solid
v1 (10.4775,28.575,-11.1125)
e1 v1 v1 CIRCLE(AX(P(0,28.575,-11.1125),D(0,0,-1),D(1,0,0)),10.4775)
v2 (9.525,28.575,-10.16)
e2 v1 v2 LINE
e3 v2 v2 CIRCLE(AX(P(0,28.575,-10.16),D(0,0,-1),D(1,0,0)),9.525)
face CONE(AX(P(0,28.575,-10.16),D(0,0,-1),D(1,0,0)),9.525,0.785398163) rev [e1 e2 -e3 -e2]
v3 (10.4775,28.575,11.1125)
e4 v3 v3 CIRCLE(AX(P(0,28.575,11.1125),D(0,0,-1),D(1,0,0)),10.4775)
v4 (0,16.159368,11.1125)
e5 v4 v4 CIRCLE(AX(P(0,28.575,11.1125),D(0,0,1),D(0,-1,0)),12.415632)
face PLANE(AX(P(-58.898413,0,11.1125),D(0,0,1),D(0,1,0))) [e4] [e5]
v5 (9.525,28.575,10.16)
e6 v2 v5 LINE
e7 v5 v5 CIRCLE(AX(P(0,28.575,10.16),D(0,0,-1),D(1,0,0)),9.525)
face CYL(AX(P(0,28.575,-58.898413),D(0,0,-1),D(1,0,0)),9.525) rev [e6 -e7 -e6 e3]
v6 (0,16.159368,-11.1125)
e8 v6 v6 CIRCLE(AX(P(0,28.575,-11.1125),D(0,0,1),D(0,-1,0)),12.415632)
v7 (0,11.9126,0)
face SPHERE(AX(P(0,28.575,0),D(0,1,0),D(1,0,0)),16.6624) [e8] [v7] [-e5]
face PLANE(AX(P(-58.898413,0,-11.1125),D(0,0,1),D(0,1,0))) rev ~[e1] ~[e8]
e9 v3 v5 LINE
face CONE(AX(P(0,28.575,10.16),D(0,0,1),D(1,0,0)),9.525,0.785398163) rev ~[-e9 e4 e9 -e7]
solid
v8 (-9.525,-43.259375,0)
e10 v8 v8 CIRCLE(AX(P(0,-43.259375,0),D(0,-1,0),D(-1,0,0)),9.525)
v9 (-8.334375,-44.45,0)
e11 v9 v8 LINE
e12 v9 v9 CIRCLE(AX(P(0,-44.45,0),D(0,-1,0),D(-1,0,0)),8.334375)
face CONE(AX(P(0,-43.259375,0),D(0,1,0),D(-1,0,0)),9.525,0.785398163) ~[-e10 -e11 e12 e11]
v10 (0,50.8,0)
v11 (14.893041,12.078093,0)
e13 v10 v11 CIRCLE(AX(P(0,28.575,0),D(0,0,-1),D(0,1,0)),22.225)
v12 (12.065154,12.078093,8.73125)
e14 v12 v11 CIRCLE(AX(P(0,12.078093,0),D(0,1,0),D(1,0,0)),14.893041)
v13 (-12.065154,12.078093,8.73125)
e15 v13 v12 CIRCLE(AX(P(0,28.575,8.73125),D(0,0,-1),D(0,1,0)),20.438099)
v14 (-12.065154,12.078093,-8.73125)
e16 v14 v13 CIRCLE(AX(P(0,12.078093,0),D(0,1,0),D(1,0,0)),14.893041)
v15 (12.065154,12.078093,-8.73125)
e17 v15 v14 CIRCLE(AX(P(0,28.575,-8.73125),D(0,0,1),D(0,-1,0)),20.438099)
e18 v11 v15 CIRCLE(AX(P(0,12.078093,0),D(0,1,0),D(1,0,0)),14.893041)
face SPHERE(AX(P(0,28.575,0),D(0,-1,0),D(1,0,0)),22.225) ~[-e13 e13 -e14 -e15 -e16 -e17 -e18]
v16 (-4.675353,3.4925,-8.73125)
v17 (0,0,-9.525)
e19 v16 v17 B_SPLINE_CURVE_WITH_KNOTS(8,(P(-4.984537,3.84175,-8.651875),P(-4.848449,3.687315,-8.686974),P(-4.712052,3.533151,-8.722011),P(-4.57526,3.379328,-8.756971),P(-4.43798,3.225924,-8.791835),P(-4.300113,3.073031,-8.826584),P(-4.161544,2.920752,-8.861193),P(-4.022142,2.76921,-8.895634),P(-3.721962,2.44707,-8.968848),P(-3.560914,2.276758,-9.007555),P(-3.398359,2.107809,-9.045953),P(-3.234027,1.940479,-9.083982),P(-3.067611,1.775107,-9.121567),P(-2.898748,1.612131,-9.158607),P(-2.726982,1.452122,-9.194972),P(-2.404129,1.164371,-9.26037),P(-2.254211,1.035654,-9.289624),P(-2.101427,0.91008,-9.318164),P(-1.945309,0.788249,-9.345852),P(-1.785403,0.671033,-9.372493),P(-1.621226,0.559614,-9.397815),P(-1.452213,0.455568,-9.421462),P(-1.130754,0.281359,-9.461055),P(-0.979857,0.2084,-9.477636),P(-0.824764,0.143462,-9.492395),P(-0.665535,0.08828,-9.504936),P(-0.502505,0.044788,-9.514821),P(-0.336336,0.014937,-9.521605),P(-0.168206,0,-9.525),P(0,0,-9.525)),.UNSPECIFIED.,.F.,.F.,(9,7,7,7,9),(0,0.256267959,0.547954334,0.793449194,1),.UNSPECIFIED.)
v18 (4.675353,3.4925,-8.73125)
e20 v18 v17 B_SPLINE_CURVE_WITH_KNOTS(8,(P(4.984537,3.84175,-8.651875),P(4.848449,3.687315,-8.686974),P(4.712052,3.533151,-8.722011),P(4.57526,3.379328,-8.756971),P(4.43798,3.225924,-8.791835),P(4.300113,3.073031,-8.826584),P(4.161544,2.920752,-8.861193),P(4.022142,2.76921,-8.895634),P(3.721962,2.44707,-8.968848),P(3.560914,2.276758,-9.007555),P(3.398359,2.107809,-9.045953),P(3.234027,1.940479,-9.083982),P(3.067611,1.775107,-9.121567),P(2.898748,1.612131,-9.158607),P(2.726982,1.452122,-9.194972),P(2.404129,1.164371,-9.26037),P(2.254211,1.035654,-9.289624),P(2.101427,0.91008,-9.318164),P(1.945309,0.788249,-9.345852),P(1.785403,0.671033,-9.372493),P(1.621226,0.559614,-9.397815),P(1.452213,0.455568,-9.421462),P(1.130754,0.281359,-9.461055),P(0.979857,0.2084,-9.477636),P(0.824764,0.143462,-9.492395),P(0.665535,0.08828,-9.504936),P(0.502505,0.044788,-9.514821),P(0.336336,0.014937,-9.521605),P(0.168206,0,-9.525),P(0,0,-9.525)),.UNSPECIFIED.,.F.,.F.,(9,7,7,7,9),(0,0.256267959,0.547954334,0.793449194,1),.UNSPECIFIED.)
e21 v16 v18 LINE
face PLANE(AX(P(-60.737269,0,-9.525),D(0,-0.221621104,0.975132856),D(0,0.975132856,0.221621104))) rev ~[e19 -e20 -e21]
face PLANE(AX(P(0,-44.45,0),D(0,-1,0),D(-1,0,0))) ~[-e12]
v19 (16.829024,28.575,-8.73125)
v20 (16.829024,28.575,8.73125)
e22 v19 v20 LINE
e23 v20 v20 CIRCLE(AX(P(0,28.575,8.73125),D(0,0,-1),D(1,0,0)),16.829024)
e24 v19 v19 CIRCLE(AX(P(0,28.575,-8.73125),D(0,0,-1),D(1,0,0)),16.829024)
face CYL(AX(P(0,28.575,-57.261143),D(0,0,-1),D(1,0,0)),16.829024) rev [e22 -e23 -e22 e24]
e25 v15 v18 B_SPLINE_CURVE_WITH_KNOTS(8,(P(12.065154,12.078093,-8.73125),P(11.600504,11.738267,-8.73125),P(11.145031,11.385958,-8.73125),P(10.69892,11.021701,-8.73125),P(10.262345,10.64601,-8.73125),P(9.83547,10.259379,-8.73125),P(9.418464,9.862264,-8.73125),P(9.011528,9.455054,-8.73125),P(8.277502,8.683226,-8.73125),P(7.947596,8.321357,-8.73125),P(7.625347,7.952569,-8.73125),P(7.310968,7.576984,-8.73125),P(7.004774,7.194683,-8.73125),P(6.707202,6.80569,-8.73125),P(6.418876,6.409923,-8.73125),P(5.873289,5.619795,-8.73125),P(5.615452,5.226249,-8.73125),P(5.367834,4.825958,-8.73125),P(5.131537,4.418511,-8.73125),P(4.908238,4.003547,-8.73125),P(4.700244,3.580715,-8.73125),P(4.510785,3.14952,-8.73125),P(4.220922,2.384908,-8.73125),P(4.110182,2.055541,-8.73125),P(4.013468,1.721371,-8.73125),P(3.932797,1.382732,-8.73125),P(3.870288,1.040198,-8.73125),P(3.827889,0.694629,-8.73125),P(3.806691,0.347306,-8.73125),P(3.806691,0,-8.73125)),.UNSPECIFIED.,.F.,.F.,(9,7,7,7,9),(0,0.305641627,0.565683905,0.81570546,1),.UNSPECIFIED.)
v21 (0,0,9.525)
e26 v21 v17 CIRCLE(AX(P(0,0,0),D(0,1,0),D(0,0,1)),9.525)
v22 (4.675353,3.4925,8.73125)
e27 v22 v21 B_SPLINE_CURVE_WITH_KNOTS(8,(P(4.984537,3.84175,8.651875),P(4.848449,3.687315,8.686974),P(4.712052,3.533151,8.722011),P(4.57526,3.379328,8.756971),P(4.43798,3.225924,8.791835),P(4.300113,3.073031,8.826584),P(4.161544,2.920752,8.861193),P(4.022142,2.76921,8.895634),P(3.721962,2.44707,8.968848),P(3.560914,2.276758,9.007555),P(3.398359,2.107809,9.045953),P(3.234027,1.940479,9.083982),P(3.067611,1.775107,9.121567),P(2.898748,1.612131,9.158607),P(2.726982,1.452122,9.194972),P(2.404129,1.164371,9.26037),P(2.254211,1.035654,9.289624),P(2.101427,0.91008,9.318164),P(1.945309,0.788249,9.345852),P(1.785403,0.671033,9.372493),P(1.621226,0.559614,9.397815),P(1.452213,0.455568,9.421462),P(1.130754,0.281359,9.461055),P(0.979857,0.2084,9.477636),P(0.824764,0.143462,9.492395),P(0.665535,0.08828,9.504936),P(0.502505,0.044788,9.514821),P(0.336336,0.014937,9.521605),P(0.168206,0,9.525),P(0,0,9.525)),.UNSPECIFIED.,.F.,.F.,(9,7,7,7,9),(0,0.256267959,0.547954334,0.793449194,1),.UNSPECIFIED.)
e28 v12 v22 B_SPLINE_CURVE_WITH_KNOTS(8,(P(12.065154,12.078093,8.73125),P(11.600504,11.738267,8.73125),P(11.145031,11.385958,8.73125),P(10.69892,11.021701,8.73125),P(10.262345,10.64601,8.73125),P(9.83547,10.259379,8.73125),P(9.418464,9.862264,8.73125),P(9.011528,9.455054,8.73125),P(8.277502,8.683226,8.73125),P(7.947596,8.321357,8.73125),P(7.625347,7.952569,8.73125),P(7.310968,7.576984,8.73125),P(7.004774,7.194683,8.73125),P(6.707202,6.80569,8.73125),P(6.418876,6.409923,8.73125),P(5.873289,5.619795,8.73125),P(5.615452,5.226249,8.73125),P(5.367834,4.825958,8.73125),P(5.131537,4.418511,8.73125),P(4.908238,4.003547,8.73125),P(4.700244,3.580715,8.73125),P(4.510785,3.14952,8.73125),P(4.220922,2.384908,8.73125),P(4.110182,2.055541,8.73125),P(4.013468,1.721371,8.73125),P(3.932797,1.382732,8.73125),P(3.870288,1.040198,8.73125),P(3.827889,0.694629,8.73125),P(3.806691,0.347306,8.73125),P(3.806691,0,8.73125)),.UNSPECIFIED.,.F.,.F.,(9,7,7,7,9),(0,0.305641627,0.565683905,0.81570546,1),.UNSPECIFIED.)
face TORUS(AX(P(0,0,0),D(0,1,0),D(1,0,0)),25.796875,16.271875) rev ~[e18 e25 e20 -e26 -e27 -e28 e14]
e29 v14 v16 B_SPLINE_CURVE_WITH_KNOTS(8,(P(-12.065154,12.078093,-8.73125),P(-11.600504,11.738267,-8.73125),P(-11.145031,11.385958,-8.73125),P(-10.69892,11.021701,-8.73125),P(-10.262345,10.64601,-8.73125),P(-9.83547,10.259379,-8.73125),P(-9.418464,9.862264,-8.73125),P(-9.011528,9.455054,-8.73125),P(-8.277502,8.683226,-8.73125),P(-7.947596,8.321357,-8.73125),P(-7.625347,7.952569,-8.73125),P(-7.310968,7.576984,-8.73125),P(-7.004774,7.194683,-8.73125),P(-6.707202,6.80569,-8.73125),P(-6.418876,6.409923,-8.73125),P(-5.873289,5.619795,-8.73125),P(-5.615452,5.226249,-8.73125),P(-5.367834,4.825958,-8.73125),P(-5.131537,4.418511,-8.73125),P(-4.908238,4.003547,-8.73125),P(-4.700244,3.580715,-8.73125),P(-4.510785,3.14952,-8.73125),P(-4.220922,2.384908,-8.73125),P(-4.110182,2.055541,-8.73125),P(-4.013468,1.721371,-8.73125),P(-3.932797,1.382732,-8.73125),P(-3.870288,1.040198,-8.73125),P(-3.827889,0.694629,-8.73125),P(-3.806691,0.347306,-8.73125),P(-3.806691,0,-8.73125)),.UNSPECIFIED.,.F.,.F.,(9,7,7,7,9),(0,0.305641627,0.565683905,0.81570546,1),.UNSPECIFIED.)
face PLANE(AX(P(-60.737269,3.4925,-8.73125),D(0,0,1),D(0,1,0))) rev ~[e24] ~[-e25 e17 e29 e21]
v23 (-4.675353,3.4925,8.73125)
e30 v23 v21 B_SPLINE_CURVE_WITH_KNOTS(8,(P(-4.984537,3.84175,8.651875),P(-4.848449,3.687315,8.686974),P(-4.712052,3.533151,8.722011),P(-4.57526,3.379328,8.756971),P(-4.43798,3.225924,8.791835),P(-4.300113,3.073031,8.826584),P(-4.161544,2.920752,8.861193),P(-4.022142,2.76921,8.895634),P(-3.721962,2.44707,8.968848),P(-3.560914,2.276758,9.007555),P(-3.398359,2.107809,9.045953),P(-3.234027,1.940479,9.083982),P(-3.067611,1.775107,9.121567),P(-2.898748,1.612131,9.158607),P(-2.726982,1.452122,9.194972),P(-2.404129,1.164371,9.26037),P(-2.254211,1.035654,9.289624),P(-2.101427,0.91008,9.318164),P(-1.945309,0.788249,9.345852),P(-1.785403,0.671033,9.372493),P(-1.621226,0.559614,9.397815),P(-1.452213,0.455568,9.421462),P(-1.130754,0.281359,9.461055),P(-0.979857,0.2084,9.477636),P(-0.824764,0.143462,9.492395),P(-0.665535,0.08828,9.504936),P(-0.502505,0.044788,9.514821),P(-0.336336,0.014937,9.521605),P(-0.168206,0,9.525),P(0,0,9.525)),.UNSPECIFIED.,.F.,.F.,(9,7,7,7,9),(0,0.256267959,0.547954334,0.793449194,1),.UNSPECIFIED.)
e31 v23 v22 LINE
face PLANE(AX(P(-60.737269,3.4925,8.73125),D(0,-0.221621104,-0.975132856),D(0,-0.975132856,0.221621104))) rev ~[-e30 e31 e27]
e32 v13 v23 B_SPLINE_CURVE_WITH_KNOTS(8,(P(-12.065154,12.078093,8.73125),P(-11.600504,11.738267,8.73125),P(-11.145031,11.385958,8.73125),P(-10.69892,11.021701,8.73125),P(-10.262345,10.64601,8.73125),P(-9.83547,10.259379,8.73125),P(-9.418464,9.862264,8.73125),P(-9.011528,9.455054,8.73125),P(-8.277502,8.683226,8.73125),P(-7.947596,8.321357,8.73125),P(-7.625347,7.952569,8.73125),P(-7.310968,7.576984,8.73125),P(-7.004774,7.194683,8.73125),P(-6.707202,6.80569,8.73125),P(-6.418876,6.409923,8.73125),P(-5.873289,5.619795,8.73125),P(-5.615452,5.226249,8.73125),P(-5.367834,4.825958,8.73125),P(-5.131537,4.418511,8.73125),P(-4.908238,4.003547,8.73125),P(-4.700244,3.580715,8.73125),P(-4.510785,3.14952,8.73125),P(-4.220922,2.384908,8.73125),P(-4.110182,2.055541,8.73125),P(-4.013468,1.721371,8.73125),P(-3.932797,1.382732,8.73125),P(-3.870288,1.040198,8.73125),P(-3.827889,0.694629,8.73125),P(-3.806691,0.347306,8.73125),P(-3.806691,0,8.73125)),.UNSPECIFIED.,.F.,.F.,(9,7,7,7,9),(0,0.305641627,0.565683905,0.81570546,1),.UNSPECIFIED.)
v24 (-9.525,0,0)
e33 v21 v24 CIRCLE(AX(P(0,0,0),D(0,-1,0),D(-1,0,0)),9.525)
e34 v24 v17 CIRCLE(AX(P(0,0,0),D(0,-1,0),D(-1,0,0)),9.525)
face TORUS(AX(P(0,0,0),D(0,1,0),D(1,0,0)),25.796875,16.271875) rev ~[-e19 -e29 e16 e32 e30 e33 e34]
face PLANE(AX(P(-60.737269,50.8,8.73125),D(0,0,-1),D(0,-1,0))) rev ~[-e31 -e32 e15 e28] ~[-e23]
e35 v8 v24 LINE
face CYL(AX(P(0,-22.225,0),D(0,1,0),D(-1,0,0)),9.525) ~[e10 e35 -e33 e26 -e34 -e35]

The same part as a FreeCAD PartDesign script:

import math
import FreeCAD as App
import Part
import Sketcher

V = App.Vector
Q = App.Units.Quantity


def edges_at(feature, points):
    """Names of the edges that pass closest to the given points."""
    edges = feature.Shape.Edges
    near = lambda p: min(range(len(edges)), key=lambda i: edges[i].distToShape(Part.Vertex(*p))[0])
    return sorted({f"Edge{near(p) + 1}" for p in points})

doc = App.newDocument("Part")
body = doc.addObject("PartDesign::Body", "Body")

# Sketch on XY plane
sketch1 = body.newObject("Sketcher::SketchObject", "Sketch")
sketch1.AttachmentSupport = (doc.getObject("XY_Plane"), [""])
sketch1.MapMode = "FlatFace"
sketch1.addGeometry(Part.LineSegment(V(0, 0, 0), V(0, -44, 0)), False)
sketch1.addGeometry(Part.LineSegment(V(0, -44, 0), V(10, -44, 0)), False)
sketch1.addGeometry(Part.LineSegment(V(10, -44, 0), V(10, 0, 0)), False)
sketch1.addGeometry(Part.LineSegment(V(10, 0, 0), V(0, 0, 0)), False)
sketch1.addConstraint(Sketcher.Constraint("Coincident", 0, 2, 1, 1))
sketch1.addConstraint(Sketcher.Constraint("Coincident", 1, 2, 2, 1))
sketch1.addConstraint(Sketcher.Constraint("Coincident", 2, 2, 3, 1))
sketch1.addConstraint(Sketcher.Constraint("Coincident", 3, 2, 0, 1))
sketch1.addConstraint(Sketcher.Constraint("Vertical", 0))
sketch1.addConstraint(Sketcher.Constraint("Horizontal", 1))
sketch1.addConstraint(Sketcher.Constraint("Vertical", 2))
sketch1.addConstraint(Sketcher.Constraint("Horizontal", 3))
sketch1.addConstraint(Sketcher.Constraint("Coincident", 3, 2, -1, 1))
sketch1.addConstraint(Sketcher.Constraint("DistanceY", 0, 2, 0, 1, Q("1.75 in")))
sketch1.addConstraint(Sketcher.Constraint("DistanceX", 1, 1, 1, 2, Q("0.375 in")))
revolution = body.newObject("PartDesign::Revolution", "Revolution")
revolution.Profile = sketch1
revolution.ReferenceAxis = (sketch1, ["V_Axis"])
revolution.Angle = 360
doc.recompute()

chamfer = body.newObject("PartDesign::Chamfer", "Chamfer")
chamfer.Base = (revolution, edges_at(revolution, [(9.525, -44.45, 0)]))
chamfer.Size = Q("0.046875 in")

# Sketch on XY plane
sketch2 = body.newObject("Sketcher::SketchObject", "Sketch001")
sketch2.AttachmentSupport = (doc.getObject("XY_Plane"), [""])
sketch2.MapMode = "FlatFace"
sketch2.addGeometry(Part.LineSegment(V(0, 0, 0), V(10, 0, 0)), False)
sketch2.addGeometry(Part.ArcOfCircle(Part.Circle(V(26, 0, 0), V(0, 0, 1), 16), math.radians(132), math.radians(180)), False)
sketch2.addGeometry(Part.ArcOfCircle(Part.Circle(V(0, 29, 0), V(0, 0, 1), 22), math.radians(-48), math.radians(90)), False)
sketch2.addGeometry(Part.LineSegment(V(0, 51, 0), V(0, 0, 0)), False)
sketch2.addConstraint(Sketcher.Constraint("Coincident", 0, 2, 1, 2))
sketch2.addConstraint(Sketcher.Constraint("Tangent", 1, 1, 2, 1))
sketch2.addConstraint(Sketcher.Constraint("Coincident", 2, 2, 3, 1))
sketch2.addConstraint(Sketcher.Constraint("Coincident", 3, 2, 0, 1))
sketch2.addConstraint(Sketcher.Constraint("Horizontal", 0))
sketch2.addConstraint(Sketcher.Constraint("Vertical", 3))
sketch2.addConstraint(Sketcher.Constraint("Coincident", 3, 2, -1, 1))
sketch2.addConstraint(Sketcher.Constraint("PointOnObject", 1, 3, -1))
sketch2.addConstraint(Sketcher.Constraint("PointOnObject", 2, 3, -2))
sketch2.addConstraint(Sketcher.Constraint("DistanceY", 3, 2, 3, 1, Q("2 in")))
sketch2.addConstraint(Sketcher.Constraint("Radius", 1, Q("0.640625 in")))
sketch2.addConstraint(Sketcher.Constraint("Radius", 2, Q("0.875 in")))
revolution2 = body.newObject("PartDesign::Revolution", "Revolution001")
revolution2.Profile = sketch2
revolution2.ReferenceAxis = (sketch2, ["V_Axis"])
revolution2.Angle = 360

# Sketch on YZ plane
sketch3 = body.newObject("Sketcher::SketchObject", "Sketch002")
sketch3.AttachmentSupport = (doc.getObject("YZ_Plane"), [""])
sketch3.MapMode = "FlatFace"
sketch3.addGeometry(Part.LineSegment(V(50.8, -22.2, 0), V(50.8, -8.7, 0)), False)
sketch3.addGeometry(Part.LineSegment(V(50.8, -8.7, 0), V(3.5, -8.7, 0)), False)
sketch3.addGeometry(Part.LineSegment(V(3.5, -8.7, 0), V(0, -9.5, 0)), False)
sketch3.addGeometry(Part.LineSegment(V(0, -9.5, 0), V(0, -22.2, 0)), False)
sketch3.addGeometry(Part.LineSegment(V(0, -22.2, 0), V(50.8, -22.2, 0)), False)
sketch3.addGeometry(Part.LineSegment(V(3.5, 8.7, 0), V(50.8, 8.7, 0)), False)
sketch3.addGeometry(Part.LineSegment(V(50.8, 8.7, 0), V(50.8, 22.2, 0)), False)
sketch3.addGeometry(Part.LineSegment(V(50.8, 22.2, 0), V(0, 22.2, 0)), False)
sketch3.addGeometry(Part.LineSegment(V(0, 22.2, 0), V(0, 9.5, 0)), False)
sketch3.addGeometry(Part.LineSegment(V(0, 9.5, 0), V(3.5, 8.7, 0)), False)
sketch3.addConstraint(Sketcher.Constraint("Coincident", 0, 2, 1, 1))
sketch3.addConstraint(Sketcher.Constraint("Coincident", 1, 2, 2, 1))
sketch3.addConstraint(Sketcher.Constraint("Coincident", 2, 2, 3, 1))
sketch3.addConstraint(Sketcher.Constraint("Coincident", 3, 2, 4, 1))
sketch3.addConstraint(Sketcher.Constraint("Coincident", 4, 2, 0, 1))
sketch3.addConstraint(Sketcher.Constraint("Coincident", 5, 2, 6, 1))
sketch3.addConstraint(Sketcher.Constraint("Coincident", 6, 2, 7, 1))
sketch3.addConstraint(Sketcher.Constraint("Coincident", 7, 2, 8, 1))
sketch3.addConstraint(Sketcher.Constraint("Coincident", 8, 2, 9, 1))
sketch3.addConstraint(Sketcher.Constraint("Coincident", 9, 2, 5, 1))
sketch3.addConstraint(Sketcher.Constraint("Vertical", 0))
sketch3.addConstraint(Sketcher.Constraint("Horizontal", 1))
sketch3.addConstraint(Sketcher.Constraint("Vertical", 3))
sketch3.addConstraint(Sketcher.Constraint("Horizontal", 4))
sketch3.addConstraint(Sketcher.Constraint("Horizontal", 5))
sketch3.addConstraint(Sketcher.Constraint("Vertical", 6))
sketch3.addConstraint(Sketcher.Constraint("Horizontal", 7))
sketch3.addConstraint(Sketcher.Constraint("Vertical", 8))
sketch3.addConstraint(Sketcher.Constraint("Symmetric", 3, 2, 7, 2, -1, 1))
sketch3.addConstraint(Sketcher.Constraint("Symmetric", 0, 2, 5, 2, -1))
sketch3.addConstraint(Sketcher.Constraint("Symmetric", 2, 2, 8, 2, -1))
sketch3.addConstraint(Sketcher.Constraint("Vertical", 1, 2, 9, 2))
sketch3.addConstraint(Sketcher.Constraint("DistanceX", 4, 1, 4, 2, Q("2 in")))
sketch3.addConstraint(Sketcher.Constraint("DistanceY", 3, 2, 3, 1, Q("0.5 in")))
sketch3.addConstraint(Sketcher.Constraint("DistanceY", 0, 1, 0, 2, Q("0.53125 in")))
sketch3.addConstraint(Sketcher.Constraint("DistanceY", 4, 2, 6, 2, Q("1.75 in")))
sketch3.addConstraint(Sketcher.Constraint("DistanceX", 1, 2, 1, 1, Q("1.8625 in")))
pocket1 = body.newObject("PartDesign::Pocket", "Pocket")
pocket1.Profile = sketch3
pocket1.Type = "ThroughAll"
pocket1.Midplane = True

# Sketch on XY plane
sketch4 = body.newObject("Sketcher::SketchObject", "Sketch003")
sketch4.AttachmentSupport = (doc.getObject("XY_Plane"), [""])
sketch4.MapMode = "FlatFace"
sketch4.addGeometry(Part.Circle(V(0, 29, 0), V(0, 0, 1), 17), False)
sketch4.addConstraint(Sketcher.Constraint("PointOnObject", 0, 3, -2))
sketch4.addConstraint(Sketcher.Constraint("DistanceY", -1, 1, 0, 3, Q("1.125 in")))
sketch4.addConstraint(Sketcher.Constraint("Diameter", 0, Q("33.658048 mm")))
pocket2 = body.newObject("PartDesign::Pocket", "Pocket001")
pocket2.Profile = sketch4
pocket2.Type = "ThroughAll"
pocket2.Midplane = True
body2 = doc.addObject("PartDesign::Body", "Body001")

# Sketch on XY plane
sketch5 = body2.newObject("Sketcher::SketchObject", "Sketch004")
sketch5.AttachmentSupport = (doc.getObject("XY_Plane001"), [""])
sketch5.MapMode = "FlatFace"
sketch5.addGeometry(Part.LineSegment(V(0, 45, 0), V(0, 12, 0)), False)
sketch5.addGeometry(Part.ArcOfCircle(Part.Circle(V(0, 29, 0), V(0, 0, 1), 17), math.radians(-90), math.radians(90)), False)
sketch5.addConstraint(Sketcher.Constraint("Coincident", 0, 1, 1, 2))
sketch5.addConstraint(Sketcher.Constraint("Coincident", 1, 1, 0, 2))
sketch5.addConstraint(Sketcher.Constraint("Vertical", 0))
sketch5.addConstraint(Sketcher.Constraint("PointOnObject", 1, 3, -2))
sketch5.addConstraint(Sketcher.Constraint("PointOnObject", 0, 1, -2))
sketch5.addConstraint(Sketcher.Constraint("Radius", 1, Q("0.656 in")))
sketch5.addConstraint(Sketcher.Constraint("DistanceY", -1, 1, 1, 3, Q("1.125 in")))
revolution3 = body2.newObject("PartDesign::Revolution", "Revolution002")
revolution3.Profile = sketch5
revolution3.ReferenceAxis = (sketch5, ["V_Axis"])
revolution3.Angle = 360

# Sketch on YZ plane
sketch6 = body2.newObject("Sketcher::SketchObject", "Sketch005")
sketch6.AttachmentSupport = (doc.getObject("YZ_Plane001"), [""])
sketch6.MapMode = "FlatFace"
sketch6.addGeometry(Part.LineSegment(V(51, 22, 0), V(0, 22, 0)), False)
sketch6.addGeometry(Part.LineSegment(V(0, 22, 0), V(0, 11, 0)), False)
sketch6.addGeometry(Part.LineSegment(V(0, 11, 0), V(51, 11, 0)), False)
sketch6.addGeometry(Part.LineSegment(V(51, 11, 0), V(51, 22, 0)), False)
sketch6.addGeometry(Part.LineSegment(V(51, -11, 0), V(0, -11, 0)), False)
sketch6.addGeometry(Part.LineSegment(V(0, -11, 0), V(0, -22, 0)), False)
sketch6.addGeometry(Part.LineSegment(V(0, -22, 0), V(51, -22, 0)), False)
sketch6.addGeometry(Part.LineSegment(V(51, -22, 0), V(51, -11, 0)), False)
sketch6.addConstraint(Sketcher.Constraint("Coincident", 0, 2, 1, 1))
sketch6.addConstraint(Sketcher.Constraint("Coincident", 1, 2, 2, 1))
sketch6.addConstraint(Sketcher.Constraint("Coincident", 2, 2, 3, 1))
sketch6.addConstraint(Sketcher.Constraint("Coincident", 3, 2, 0, 1))
sketch6.addConstraint(Sketcher.Constraint("Coincident", 4, 2, 5, 1))
sketch6.addConstraint(Sketcher.Constraint("Coincident", 5, 2, 6, 1))
sketch6.addConstraint(Sketcher.Constraint("Coincident", 6, 2, 7, 1))
sketch6.addConstraint(Sketcher.Constraint("Coincident", 7, 2, 4, 1))
sketch6.addConstraint(Sketcher.Constraint("Horizontal", 0))
sketch6.addConstraint(Sketcher.Constraint("Vertical", 1))
sketch6.addConstraint(Sketcher.Constraint("Horizontal", 2))
sketch6.addConstraint(Sketcher.Constraint("Vertical", 3))
sketch6.addConstraint(Sketcher.Constraint("Horizontal", 4))
sketch6.addConstraint(Sketcher.Constraint("Vertical", 5))
sketch6.addConstraint(Sketcher.Constraint("Horizontal", 6))
sketch6.addConstraint(Sketcher.Constraint("Vertical", 7))
sketch6.addConstraint(Sketcher.Constraint("Symmetric", 1, 2, 4, 2, -1, 1))
sketch6.addConstraint(Sketcher.Constraint("Symmetric", 0, 2, 5, 2, -1))
sketch6.addConstraint(Sketcher.Constraint("Vertical", 3, 2, 6, 2))
sketch6.addConstraint(Sketcher.Constraint("DistanceX", 0, 2, 0, 1, Q("2 in")))
sketch6.addConstraint(Sketcher.Constraint("DistanceY", 1, 2, 1, 1, Q("0.4375 in")))
sketch6.addConstraint(Sketcher.Constraint("DistanceY", 5, 2, 0, 2, Q("1.75 in")))
pocket3 = body2.newObject("PartDesign::Pocket", "Pocket002")
pocket3.Profile = sketch6
pocket3.Type = "ThroughAll"
pocket3.Midplane = True

# Sketch on XY plane
sketch7 = body2.newObject("Sketcher::SketchObject", "Sketch006")
sketch7.AttachmentSupport = (doc.getObject("XY_Plane001"), [""])
sketch7.MapMode = "FlatFace"
sketch7.addGeometry(Part.Circle(V(0, 29, 0), V(0, 0, 1), 10), False)
sketch7.addConstraint(Sketcher.Constraint("PointOnObject", 0, 3, -2))
sketch7.addConstraint(Sketcher.Constraint("Diameter", 0, Q("0.75 in")))
sketch7.addConstraint(Sketcher.Constraint("DistanceY", -1, 1, 0, 3, Q("1.125 in")))
pocket4 = body2.newObject("PartDesign::Pocket", "Pocket003")
pocket4.Profile = sketch7
pocket4.Type = "ThroughAll"
pocket4.Midplane = True
doc.recompute()

chamfer2 = body2.newObject("PartDesign::Chamfer", "Chamfer001")
chamfer2.Base = (pocket4, edges_at(pocket4, [(-9.525, 28.575, -11.113), (-9.525, 28.575, 11.113)]))
chamfer2.Size = Q("0.0375 in")

doc.recompute()
